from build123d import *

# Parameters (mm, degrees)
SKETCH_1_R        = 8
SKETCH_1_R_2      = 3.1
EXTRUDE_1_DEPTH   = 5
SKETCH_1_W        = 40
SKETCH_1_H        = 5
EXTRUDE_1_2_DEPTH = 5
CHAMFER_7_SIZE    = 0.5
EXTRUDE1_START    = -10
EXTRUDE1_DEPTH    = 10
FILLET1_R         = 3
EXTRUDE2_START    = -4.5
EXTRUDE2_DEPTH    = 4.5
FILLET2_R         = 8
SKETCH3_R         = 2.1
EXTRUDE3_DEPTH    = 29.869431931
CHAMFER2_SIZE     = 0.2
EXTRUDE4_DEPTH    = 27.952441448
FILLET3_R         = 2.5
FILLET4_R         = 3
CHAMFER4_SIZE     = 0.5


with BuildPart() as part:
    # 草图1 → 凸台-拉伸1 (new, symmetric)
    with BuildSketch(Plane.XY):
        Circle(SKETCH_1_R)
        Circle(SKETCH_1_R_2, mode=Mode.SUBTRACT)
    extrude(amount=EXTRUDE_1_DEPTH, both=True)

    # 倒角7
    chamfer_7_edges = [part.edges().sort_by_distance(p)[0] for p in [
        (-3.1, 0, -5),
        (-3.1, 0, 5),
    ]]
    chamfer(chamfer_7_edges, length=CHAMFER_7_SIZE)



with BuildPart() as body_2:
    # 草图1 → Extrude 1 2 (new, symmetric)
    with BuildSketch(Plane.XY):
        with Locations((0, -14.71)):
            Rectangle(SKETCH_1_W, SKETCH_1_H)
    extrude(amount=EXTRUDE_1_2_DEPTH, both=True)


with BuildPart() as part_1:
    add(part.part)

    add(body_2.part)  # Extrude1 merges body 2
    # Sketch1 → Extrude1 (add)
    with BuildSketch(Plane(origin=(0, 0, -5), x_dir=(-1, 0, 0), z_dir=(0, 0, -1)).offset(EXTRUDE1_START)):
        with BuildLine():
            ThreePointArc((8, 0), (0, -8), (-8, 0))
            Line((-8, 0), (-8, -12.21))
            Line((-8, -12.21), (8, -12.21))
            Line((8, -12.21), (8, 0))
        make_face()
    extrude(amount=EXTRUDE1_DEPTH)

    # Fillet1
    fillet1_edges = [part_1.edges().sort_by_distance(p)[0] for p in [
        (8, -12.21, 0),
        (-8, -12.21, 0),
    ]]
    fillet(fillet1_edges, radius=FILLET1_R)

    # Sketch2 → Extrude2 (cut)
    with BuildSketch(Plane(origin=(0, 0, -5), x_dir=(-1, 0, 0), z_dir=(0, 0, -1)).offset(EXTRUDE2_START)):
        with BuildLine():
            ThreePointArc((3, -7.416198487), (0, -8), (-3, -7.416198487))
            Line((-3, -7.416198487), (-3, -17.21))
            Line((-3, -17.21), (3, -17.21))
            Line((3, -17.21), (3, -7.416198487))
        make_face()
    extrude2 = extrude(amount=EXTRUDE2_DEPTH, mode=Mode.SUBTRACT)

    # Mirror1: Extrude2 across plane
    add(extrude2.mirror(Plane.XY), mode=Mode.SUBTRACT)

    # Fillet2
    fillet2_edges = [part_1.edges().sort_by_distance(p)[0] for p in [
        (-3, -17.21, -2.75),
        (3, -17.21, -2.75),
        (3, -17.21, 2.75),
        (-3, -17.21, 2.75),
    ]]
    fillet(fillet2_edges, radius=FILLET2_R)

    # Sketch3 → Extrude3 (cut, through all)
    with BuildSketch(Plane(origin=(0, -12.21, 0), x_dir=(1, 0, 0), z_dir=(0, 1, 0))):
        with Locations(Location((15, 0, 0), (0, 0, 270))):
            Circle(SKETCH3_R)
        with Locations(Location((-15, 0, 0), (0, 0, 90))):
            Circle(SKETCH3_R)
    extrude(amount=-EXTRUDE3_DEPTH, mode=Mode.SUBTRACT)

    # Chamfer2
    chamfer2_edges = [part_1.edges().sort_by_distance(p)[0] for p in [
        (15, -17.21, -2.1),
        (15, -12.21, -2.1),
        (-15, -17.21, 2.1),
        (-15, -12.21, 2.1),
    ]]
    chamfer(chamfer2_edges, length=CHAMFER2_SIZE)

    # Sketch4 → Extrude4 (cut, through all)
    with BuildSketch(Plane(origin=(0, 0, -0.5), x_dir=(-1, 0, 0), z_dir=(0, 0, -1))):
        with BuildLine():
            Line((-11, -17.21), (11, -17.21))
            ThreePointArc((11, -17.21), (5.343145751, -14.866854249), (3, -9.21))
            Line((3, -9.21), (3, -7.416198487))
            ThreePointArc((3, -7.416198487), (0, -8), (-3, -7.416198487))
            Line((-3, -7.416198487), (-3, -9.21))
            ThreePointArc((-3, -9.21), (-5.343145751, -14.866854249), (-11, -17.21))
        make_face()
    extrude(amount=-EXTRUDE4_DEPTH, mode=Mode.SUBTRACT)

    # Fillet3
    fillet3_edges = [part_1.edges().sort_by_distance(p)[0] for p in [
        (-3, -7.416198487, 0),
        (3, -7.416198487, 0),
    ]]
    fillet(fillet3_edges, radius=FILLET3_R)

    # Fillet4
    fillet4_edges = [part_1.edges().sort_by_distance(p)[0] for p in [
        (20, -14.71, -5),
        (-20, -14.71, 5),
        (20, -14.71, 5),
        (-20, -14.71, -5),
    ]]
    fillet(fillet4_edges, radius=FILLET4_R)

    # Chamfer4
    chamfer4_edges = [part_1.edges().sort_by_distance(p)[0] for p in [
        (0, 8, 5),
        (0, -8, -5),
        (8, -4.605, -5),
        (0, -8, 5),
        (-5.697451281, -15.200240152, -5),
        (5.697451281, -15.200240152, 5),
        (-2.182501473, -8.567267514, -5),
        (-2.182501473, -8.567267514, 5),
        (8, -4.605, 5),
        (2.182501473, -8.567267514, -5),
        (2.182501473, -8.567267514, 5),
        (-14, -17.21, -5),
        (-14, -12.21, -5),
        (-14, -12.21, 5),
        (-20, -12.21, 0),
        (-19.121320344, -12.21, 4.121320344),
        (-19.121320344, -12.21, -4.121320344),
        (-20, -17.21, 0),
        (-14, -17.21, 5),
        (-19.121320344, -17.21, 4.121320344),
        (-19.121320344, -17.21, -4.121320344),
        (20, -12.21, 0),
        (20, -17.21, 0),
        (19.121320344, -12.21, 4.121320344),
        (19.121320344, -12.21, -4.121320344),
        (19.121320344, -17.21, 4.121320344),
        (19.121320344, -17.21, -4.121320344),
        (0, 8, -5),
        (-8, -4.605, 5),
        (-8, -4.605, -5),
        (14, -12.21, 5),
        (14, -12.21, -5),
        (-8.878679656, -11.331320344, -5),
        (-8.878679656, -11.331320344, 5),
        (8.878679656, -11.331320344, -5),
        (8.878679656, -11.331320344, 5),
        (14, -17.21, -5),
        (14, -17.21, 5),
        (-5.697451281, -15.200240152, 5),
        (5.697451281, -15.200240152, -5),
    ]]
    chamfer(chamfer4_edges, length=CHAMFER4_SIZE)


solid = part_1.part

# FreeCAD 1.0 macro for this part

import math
import FreeCAD as App
import Part
import Sketcher
from FreeCAD import Vector


def edges_at(feature, points):
    """Names of the edges that pass closest to the given points."""
    edges = feature.Shape.Edges
    near = lambda p: min(range(len(edges)), key=lambda i: edges[i].distToShape(Part.Vertex(*p))[0])
    return sorted({f"Edge{near(p) + 1}" for p in points})


def add_polygon(sketch, points):
    """Adds a closed chain of lines whose ends are joined by coincident constraints."""
    first, n = sketch.GeometryCount, len(points)
    for a, b in zip(points, points[1:] + points[:1]):
        sketch.addGeometry(Part.LineSegment(App.Vector(*a, 0), App.Vector(*b, 0)), False)
    for i in range(n):
        sketch.addConstraint(Sketcher.Constraint("Coincident", first + i, 2, first + (i + 1) % n, 1))

doc = App.newDocument("Part")
body = doc.addObject("PartDesign::Body", "Body")

sketch1 = body.newObject("Sketcher::SketchObject", "Sketch")
sketch1.AttachmentSupport = (doc.getObject("XY_Plane"), [""])
sketch1.MapMode = "FlatFace"
sketch1.addGeometry([
    Part.Circle(Vector(0, 0, 0), Vector(0, 0, 1), 8),
    Part.Circle(Vector(0, 0, 0), Vector(0, 0, 1), 3.1),
], False)
sketch1.addConstraint([
    Sketcher.Constraint("Coincident", 0, 3, -1, 1),
    Sketcher.Constraint("Coincident", 1, 3, -1, 1),
    Sketcher.Constraint("Diameter", 0, 16.0),
    Sketcher.Constraint("Diameter", 1, 6.2),
])
pad1 = body.newObject("PartDesign::Pad", "Pad")
pad1.Profile = sketch1
pad1.Length = 10
pad1.Midplane = True
doc.recompute()

chamfer = body.newObject("PartDesign::Chamfer", "Chamfer")
chamfer.Base = (pad1, edges_at(pad1, [(-3.1, 0, -5), (-3.1, 0, 5)]))
chamfer.Size = 0.5
body2 = doc.addObject("PartDesign::Body", "Body001")

sketch2 = body2.newObject("Sketcher::SketchObject", "Sketch001")
sketch2.AttachmentSupport = (doc.getObject("XY_Plane001"), [""])
sketch2.MapMode = "FlatFace"
add_polygon(sketch2, [(-20, -12), (-20, -17), (20, -17), (20, -12)])
sketch2.addConstraint([
    Sketcher.Constraint("Vertical", 0),
    Sketcher.Constraint("Horizontal", 1),
    Sketcher.Constraint("Vertical", 2),
    Sketcher.Constraint("Horizontal", 3),
    Sketcher.Constraint("DistanceX", 1, 1, 1, 2, 40.0),
    Sketcher.Constraint("DistanceY", 0, 2, 0, 1, 5.0),
    Sketcher.Constraint("DistanceX", 0, 2, -1, 1, 20.0),
    Sketcher.Constraint("DistanceY", 0, 2, -1, 1, 17.21),
])
pad2 = body2.newObject("PartDesign::Pad", "Pad001")
pad2.Profile = sketch2
pad2.Length = 10
pad2.Midplane = True
body.AllowCompound = True
doc.recompute()

boolean = body.newObject("PartDesign::Boolean", "Boolean")
boolean.Type = "Fuse"
boolean.addObjects([body2])

sketch3 = body.newObject("Sketcher::SketchObject", "Sketch002")
sketch3.AttachmentSupport = (doc.getObject("XY_Plane"), [""])
sketch3.MapMode = "FlatFace"
sketch3.AttachmentOffset = App.Placement(Vector(0, 0, 5), App.Rotation())
sketch3.addGeometry([
    Part.ArcOfCircle(Part.Circle(Vector(0, 0, 0), Vector(0, 0, 1), 8), math.radians(180), math.radians(360)),
    Part.LineSegment(Vector(8, 0, 0), Vector(8, -12, 0)),
    Part.LineSegment(Vector(8, -12, 0), Vector(-8, -12, 0)),
    Part.LineSegment(Vector(-8, -12, 0), Vector(-8, 0, 0)),
], False)
sketch3.addConstraint([
    Sketcher.Constraint("Tangent", 0, 2, 1, 1),
    Sketcher.Constraint("Coincident", 1, 2, 2, 1),
    Sketcher.Constraint("Coincident", 2, 2, 3, 1),
    Sketcher.Constraint("Tangent", 3, 2, 0, 1),
    Sketcher.Constraint("Vertical", 1),
    Sketcher.Constraint("Horizontal", 2),
    Sketcher.Constraint("Vertical", 3),
    Sketcher.Constraint("Coincident", 0, 3, -1, 1),
    Sketcher.Constraint("Radius", 0, 8.0),
    Sketcher.Constraint("DistanceY", 1, 2, 1, 1, 12.21),
])
pad3 = body.newObject("PartDesign::Pad", "Pad002")
pad3.Profile = sketch3
pad3.Length = 10
pad3.Reversed = True
doc.recompute()

fillet = body.newObject("PartDesign::Fillet", "Fillet")
fillet.Base = (pad3, edges_at(pad3, [(8, -12.21, 0), (-8, -12.21, 0)]))
fillet.Radius = 3

sketch4 = body.newObject("Sketcher::SketchObject", "Sketch003")
sketch4.AttachmentSupport = (doc.getObject("XY_Plane"), [""])
sketch4.MapMode = "FlatFace"
sketch4.AttachmentOffset = App.Placement(Vector(0, 0, -0.5), App.Rotation())
sketch4.addGeometry([
    Part.ArcOfCircle(Part.Circle(Vector(0, 0, 0), Vector(0, 0, 1), 8), math.radians(-112), math.radians(-68)),
    Part.LineSegment(Vector(3, -7, 0), Vector(3, -17, 0)),
    Part.LineSegment(Vector(3, -17, 0), Vector(-3, -17, 0)),
    Part.LineSegment(Vector(-3, -17, 0), Vector(-3, -7, 0)),
], False)
sketch4.addConstraint([
    Sketcher.Constraint("Coincident", 0, 2, 1, 1),
    Sketcher.Constraint("Coincident", 1, 2, 2, 1),
    Sketcher.Constraint("Coincident", 2, 2, 3, 1),
    Sketcher.Constraint("Coincident", 3, 2, 0, 1),
    Sketcher.Constraint("Vertical", 1),
    Sketcher.Constraint("Horizontal", 2),
    Sketcher.Constraint("Vertical", 3),
    Sketcher.Constraint("Coincident", 0, 3, -1, 1),
    Sketcher.Constraint("Horizontal", 0, 2, 3, 2),
    Sketcher.Constraint("Radius", 0, 8.0),
    Sketcher.Constraint("DistanceX", 2, 2, 2, 1, 6.0),
    Sketcher.Constraint("DistanceY", 1, 2, -1, 1, 17.21),
])
pocket1 = body.newObject("PartDesign::Pocket", "Pocket")
pocket1.Profile = sketch4
pocket1.Length = 4.5
doc.recompute()

mirrored = body.newObject("PartDesign::Mirrored", "Mirrored")
mirrored.Originals = [pocket1]
mirrored.MirrorPlane = (doc.getObject("XY_Plane"), [""])
body.Tip = mirrored
doc.recompute()

fillet2 = body.newObject("PartDesign::Fillet", "Fillet001")
fillet2.Base = (mirrored, edges_at(mirrored, [
    (-3, -17.21, -2.75),
    (3, -17.21, -2.75),
    (3, -17.21, 2.75),
    (-3, -17.21, 2.75),
]))
fillet2.Radius = 8

sketch5 = body.newObject("Sketcher::SketchObject", "Sketch004")
sketch5.AttachmentSupport = (doc.getObject("XZ_Plane"), [""])
sketch5.MapMode = "FlatFace"
sketch5.AttachmentOffset = App.Placement(Vector(0, 0, 12.21), App.Rotation())
sketch5.addGeometry([
    Part.Circle(Vector(15, 0, 0), Vector(0, 0, 1), 2.1),
    Part.Circle(Vector(-15, 0, 0), Vector(0, 0, 1), 2.1),
], False)
sketch5.addConstraint([
    Sketcher.Constraint("Equal", 0, 1),
    Sketcher.Constraint("Symmetric", 0, 3, 1, 3, -1, 1),
    Sketcher.Constraint("PointOnObject", 0, 3, -1),
    Sketcher.Constraint("Diameter", 0, 4.2),
    Sketcher.Constraint("DistanceX", -1, 1, 0, 3, 15.0),
])
pocket2 = body.newObject("PartDesign::Pocket", "Pocket001")
pocket2.Profile = sketch5
pocket2.Type = "ThroughAll"
pocket2.Reversed = True
doc.recompute()

chamfer2 = body.newObject("PartDesign::Chamfer", "Chamfer001")
chamfer2.Base = (pocket2, edges_at(pocket2, [
    (15, -17.21, -2.1),
    (15, -12.21, -2.1),
    (-15, -17.21, 2.1),
    (-15, -12.21, 2.1),
]))
chamfer2.Size = 0.2

sketch6 = body.newObject("Sketcher::SketchObject", "Sketch005")
sketch6.AttachmentSupport = (doc.getObject("XY_Plane"), [""])
sketch6.MapMode = "FlatFace"
sketch6.AttachmentOffset = App.Placement(Vector(0, 0, -0.5), App.Rotation())
sketch6.addGeometry([
    Part.LineSegment(Vector(11, -17.2, 0), Vector(-11, -17.2, 0)),
    Part.ArcOfCircle(Part.Circle(Vector(-11, -9.2, 0), Vector(0, 0, 1), 8), math.radians(-90), math.radians(0)),
    Part.LineSegment(Vector(-3, -9.2, 0), Vector(-3, -7.4, 0)),
    Part.ArcOfCircle(Part.Circle(Vector(0, 0, 0), Vector(0, 0, 1), 8), math.radians(-112), math.radians(-68)),
    Part.LineSegment(Vector(3, -7.4, 0), Vector(3, -9.2, 0)),
    Part.ArcOfCircle(Part.Circle(Vector(11, -9.2, 0), Vector(0, 0, 1), 8), math.radians(-180), math.radians(-90)),
], False)
sketch6.addConstraint([
    Sketcher.Constraint("Tangent", 0, 2, 1, 1),
    Sketcher.Constraint("Tangent", 1, 2, 2, 1),
    Sketcher.Constraint("Coincident", 2, 2, 3, 1),
    Sketcher.Constraint("Coincident", 3, 2, 4, 1),
    Sketcher.Constraint("Tangent", 4, 2, 5, 1),
    Sketcher.Constraint("Tangent", 5, 2, 0, 1),
    Sketcher.Constraint("Horizontal", 0),
    Sketcher.Constraint("Vertical", 2),
    Sketcher.Constraint("Vertical", 4),
    Sketcher.Constraint("Coincident", 3, 3, -1, 1),
    Sketcher.Constraint("Equal", 1, 3),
    Sketcher.Constraint("Equal", 3, 5),
    Sketcher.Constraint("Horizontal", 2, 2, 3, 2),
    Sketcher.Constraint("Radius", 1, 8.0),
    Sketcher.Constraint("DistanceX", 0, 2, 0, 1, 22.0),
    Sketcher.Constraint("DistanceY", 1, 3, -1, 1, 9.21),
])
pocket3 = body.newObject("PartDesign::Pocket", "Pocket002")
pocket3.Profile = sketch6
pocket3.Type = "ThroughAll"
pocket3.Reversed = True
doc.recompute()

fillet3 = body.newObject("PartDesign::Fillet", "Fillet002")
fillet3.Base = (pocket3, edges_at(pocket3, [(-3, -7.416, 0), (3, -7.416, 0)]))
fillet3.Radius = 2.5
doc.recompute()

fillet4 = body.newObject("PartDesign::Fillet", "Fillet003")
fillet4.Base = (fillet3, edges_at(fillet3, [
    (20, -14.71, -5),
    (-20, -14.71, 5),
    (20, -14.71, 5),
    (-20, -14.71, -5),
]))
fillet4.Radius = 3
doc.recompute()

chamfer3 = body.newObject("PartDesign::Chamfer", "Chamfer002")
chamfer3.Base = (fillet4, edges_at(fillet4, [
    (0, 8, 5),
    (0, -8, -5),
    (8, -4.605, -5),
    (0, -8, 5),
    (-5.697, -15.2, -5),
    (5.697, -15.2, 5),
    (-2.183, -8.567, -5),
    (-2.183, -8.567, 5),
    (8, -4.605, 5),
    (2.183, -8.567, -5),
    (2.183, -8.567, 5),
    (-14, -17.21, -5),
    (-14, -12.21, -5),
    (-14, -12.21, 5),
    (-20, -12.21, 0),
    (-19.121, -12.21, 4.121),
    (-19.121, -12.21, -4.121),
    (-20, -17.21, 0),
    (-14, -17.21, 5),
    (-19.121, -17.21, 4.121),
    (-19.121, -17.21, -4.121),
    (20, -12.21, 0),
    (20, -17.21, 0),
    (19.121, -12.21, 4.121),
    (19.121, -12.21, -4.121),
    (19.121, -17.21, 4.121),
    (19.121, -17.21, -4.121),
    (0, 8, -5),
    (-8, -4.605, 5),
    (-8, -4.605, -5),
    (14, -12.21, 5),
    (14, -12.21, -5),
    (-8.879, -11.331, -5),
    (-8.879, -11.331, 5),
    (8.879, -11.331, -5),
    (8.879, -11.331, 5),
    (14, -17.21, -5),
    (14, -17.21, 5),
    (-5.697, -15.2, 5),
    (5.697, -15.2, -5),
]))
chamfer3.Size = 0.5

doc.recompute()
